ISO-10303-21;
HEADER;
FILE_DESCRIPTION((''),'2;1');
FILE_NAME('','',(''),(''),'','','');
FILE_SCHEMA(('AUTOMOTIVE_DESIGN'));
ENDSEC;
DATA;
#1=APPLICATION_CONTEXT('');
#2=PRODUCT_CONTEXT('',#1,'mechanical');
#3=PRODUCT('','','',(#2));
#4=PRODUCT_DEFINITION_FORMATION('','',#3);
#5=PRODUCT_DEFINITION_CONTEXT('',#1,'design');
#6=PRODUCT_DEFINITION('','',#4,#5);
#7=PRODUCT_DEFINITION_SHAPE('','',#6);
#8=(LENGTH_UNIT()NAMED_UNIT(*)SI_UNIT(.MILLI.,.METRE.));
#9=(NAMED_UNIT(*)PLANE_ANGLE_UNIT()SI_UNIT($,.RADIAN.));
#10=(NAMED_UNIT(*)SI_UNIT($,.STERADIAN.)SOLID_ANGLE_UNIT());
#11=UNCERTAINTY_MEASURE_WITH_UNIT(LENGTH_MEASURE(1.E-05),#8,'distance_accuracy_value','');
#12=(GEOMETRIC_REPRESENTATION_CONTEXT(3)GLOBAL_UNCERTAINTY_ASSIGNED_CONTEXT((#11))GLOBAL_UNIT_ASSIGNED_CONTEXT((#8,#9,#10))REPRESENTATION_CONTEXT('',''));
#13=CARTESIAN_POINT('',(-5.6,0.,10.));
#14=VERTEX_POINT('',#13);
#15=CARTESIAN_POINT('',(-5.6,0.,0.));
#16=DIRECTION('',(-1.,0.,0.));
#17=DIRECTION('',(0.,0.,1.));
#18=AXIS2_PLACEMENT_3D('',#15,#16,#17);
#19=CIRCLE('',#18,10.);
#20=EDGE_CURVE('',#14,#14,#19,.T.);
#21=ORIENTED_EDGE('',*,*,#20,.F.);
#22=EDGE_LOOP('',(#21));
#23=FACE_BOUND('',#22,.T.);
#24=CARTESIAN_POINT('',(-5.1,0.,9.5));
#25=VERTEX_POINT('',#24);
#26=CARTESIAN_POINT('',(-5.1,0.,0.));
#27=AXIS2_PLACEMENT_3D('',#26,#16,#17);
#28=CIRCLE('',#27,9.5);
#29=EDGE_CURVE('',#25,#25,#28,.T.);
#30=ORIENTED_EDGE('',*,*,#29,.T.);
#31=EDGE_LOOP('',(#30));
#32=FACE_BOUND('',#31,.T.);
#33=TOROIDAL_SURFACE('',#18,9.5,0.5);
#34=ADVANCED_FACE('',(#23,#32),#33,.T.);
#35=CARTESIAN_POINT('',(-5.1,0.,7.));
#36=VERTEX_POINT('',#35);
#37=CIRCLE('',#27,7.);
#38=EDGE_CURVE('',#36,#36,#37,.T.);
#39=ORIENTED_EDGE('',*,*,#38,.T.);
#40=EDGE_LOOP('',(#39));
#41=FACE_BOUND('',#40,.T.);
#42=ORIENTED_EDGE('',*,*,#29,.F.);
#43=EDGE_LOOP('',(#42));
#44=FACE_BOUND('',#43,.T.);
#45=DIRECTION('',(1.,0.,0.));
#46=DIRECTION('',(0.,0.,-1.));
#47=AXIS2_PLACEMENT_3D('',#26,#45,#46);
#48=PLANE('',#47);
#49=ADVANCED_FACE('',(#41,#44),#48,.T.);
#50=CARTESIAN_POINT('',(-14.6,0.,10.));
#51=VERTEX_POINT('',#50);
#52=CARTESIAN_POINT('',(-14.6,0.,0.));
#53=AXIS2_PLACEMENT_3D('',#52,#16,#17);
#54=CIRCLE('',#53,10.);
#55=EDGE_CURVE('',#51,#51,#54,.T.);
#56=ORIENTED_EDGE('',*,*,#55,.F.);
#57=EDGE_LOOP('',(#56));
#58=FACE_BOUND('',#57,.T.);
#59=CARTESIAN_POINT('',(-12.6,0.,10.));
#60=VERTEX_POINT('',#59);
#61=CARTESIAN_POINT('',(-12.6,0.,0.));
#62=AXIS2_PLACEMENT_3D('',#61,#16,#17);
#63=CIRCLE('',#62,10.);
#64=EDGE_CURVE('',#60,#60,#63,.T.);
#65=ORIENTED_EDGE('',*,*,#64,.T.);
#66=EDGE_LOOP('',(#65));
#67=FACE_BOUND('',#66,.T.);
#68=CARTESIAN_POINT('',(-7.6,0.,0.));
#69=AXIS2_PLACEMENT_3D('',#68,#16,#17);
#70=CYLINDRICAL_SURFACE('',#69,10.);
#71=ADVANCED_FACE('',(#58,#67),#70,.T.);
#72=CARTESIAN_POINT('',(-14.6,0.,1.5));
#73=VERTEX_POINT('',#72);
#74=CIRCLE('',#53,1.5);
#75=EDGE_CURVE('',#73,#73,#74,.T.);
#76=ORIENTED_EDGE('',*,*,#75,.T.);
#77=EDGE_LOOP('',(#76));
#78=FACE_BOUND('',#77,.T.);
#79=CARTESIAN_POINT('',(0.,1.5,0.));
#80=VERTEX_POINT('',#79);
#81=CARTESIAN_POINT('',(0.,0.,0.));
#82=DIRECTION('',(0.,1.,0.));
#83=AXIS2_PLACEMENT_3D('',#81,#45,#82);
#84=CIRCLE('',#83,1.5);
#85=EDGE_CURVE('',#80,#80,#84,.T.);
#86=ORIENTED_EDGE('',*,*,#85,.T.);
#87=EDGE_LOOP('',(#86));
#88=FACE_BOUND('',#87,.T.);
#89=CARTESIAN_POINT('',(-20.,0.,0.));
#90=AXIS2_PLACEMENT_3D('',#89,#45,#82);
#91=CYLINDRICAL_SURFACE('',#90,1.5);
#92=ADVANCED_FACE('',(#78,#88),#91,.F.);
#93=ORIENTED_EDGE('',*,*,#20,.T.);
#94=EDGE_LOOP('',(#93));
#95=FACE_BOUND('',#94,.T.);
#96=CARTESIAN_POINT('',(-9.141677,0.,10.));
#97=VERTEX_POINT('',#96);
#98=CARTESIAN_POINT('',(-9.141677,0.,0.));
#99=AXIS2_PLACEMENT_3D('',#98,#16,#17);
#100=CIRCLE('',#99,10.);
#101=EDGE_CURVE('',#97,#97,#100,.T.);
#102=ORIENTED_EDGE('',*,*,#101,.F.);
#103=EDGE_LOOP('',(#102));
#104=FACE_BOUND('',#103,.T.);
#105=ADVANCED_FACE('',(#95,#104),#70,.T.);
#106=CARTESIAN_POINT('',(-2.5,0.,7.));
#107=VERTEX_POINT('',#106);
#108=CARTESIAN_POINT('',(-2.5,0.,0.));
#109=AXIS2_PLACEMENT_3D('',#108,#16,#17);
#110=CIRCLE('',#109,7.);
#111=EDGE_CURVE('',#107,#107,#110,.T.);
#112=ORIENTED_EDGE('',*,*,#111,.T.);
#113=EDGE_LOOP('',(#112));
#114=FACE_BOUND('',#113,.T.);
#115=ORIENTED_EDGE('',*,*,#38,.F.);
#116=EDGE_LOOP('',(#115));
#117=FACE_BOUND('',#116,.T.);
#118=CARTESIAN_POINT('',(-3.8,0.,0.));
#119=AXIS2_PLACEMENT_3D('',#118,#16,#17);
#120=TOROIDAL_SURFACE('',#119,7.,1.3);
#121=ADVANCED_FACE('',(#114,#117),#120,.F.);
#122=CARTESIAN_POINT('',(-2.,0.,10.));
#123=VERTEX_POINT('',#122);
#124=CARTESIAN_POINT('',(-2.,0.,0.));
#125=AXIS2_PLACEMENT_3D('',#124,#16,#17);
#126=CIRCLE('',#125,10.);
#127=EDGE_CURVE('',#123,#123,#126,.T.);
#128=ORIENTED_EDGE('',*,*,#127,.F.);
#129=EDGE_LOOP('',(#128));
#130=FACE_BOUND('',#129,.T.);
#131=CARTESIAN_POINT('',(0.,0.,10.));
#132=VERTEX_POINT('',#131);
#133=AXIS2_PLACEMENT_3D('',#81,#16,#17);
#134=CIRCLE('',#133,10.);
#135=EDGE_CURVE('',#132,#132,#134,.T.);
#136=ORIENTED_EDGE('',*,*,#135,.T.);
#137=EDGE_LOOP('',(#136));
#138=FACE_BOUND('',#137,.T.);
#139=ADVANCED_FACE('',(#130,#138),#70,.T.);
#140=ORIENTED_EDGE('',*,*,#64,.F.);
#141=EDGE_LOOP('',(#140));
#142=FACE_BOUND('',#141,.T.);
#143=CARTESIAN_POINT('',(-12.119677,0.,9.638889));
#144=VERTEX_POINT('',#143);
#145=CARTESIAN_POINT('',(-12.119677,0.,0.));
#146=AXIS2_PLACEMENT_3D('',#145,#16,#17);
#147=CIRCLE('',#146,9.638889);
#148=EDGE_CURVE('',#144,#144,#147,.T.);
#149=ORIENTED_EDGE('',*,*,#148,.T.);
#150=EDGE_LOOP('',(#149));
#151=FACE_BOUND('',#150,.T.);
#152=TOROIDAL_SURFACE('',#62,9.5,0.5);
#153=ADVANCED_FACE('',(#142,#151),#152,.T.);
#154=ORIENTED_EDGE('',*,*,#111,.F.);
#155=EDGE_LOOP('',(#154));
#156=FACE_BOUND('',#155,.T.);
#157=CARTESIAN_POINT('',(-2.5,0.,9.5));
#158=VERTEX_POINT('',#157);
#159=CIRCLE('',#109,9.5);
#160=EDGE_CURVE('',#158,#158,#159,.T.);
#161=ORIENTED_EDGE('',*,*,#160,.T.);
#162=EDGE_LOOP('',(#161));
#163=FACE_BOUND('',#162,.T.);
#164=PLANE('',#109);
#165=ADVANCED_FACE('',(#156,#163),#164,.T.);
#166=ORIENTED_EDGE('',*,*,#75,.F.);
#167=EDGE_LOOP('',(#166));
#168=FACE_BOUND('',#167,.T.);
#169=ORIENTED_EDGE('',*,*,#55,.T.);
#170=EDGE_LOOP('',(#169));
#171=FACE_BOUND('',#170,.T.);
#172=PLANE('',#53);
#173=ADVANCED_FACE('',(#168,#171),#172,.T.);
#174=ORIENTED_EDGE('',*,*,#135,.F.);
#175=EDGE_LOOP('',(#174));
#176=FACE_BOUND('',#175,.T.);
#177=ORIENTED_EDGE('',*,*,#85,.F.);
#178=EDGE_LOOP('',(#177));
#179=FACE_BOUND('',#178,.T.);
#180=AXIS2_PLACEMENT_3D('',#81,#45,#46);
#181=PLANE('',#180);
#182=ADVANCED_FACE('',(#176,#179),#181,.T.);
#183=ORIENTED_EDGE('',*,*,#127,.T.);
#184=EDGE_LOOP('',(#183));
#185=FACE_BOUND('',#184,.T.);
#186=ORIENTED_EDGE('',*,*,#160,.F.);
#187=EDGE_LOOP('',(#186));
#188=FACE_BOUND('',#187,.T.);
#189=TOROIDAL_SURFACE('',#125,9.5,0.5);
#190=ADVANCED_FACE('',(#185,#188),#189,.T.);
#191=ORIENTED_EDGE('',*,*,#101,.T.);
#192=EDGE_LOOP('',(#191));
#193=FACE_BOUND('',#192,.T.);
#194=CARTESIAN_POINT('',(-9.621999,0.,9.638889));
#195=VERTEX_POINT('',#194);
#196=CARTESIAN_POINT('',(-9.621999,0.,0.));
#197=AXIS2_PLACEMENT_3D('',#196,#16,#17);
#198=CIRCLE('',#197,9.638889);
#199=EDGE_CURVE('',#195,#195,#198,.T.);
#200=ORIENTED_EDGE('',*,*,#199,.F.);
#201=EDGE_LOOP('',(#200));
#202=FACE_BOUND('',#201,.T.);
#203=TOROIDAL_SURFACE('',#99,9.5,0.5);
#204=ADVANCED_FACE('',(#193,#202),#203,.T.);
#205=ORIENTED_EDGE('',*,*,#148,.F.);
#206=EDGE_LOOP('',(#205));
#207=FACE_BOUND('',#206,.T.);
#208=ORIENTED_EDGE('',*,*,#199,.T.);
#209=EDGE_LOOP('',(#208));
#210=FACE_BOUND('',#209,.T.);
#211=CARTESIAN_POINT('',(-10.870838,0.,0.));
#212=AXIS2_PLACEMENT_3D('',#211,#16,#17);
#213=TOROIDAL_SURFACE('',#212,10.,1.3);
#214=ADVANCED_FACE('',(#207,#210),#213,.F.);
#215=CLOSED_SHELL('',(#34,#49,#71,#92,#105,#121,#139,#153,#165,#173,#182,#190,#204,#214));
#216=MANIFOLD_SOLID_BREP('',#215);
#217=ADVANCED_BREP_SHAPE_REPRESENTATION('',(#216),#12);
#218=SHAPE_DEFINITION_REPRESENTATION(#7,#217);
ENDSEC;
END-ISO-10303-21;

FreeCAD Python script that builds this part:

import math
import FreeCAD as App
import Part
import Sketcher
from FreeCAD import Vector

doc = App.newDocument("Part")
body = doc.addObject("PartDesign::Body", "Body")

# Sketch on XY plane
sketch1 = body.newObject("Sketcher::SketchObject", "Sketch")
sketch1.AttachmentSupport = (doc.getObject("XY_Plane"), [""])
sketch1.MapMode = "FlatFace"
sketch1.addGeometry([
    Part.LineSegment(Vector(0, 0, 0), Vector(0, 10, 0)),  # 0
    Part.LineSegment(Vector(0, 10, 0), Vector(-2, 10, 0)),  # 1
    Part.ArcOfCircle(Part.Circle(Vector(-2, 9.5, 0), Vector(0, 0, 1), 0.5), math.radians(90), math.radians(180)),  # 2
    Part.LineSegment(Vector(-2.5, 9.5, 0), Vector(-2.5, 7, 0)),  # 3
    Part.ArcOfCircle(Part.Circle(Vector(-3.8, 7, 0), Vector(0, 0, 1), 1.3), math.radians(180), math.radians(360)),  # 4
    Part.LineSegment(Vector(-5.1, 7, 0), Vector(-5.1, 9.5, 0)),  # 5
    Part.ArcOfCircle(Part.Circle(Vector(-5.6, 9.5, 0), Vector(0, 0, 1), 0.5), math.radians(0), math.radians(90)),  # 6
    Part.LineSegment(Vector(-5.6, 10, 0), Vector(-9.14, 10, 0)),  # 7
    Part.ArcOfCircle(Part.Circle(Vector(-9.14, 9.5, 0), Vector(0, 0, 1), 0.5), math.radians(90), math.radians(164)),  # 8
    Part.ArcOfCircle(Part.Circle(Vector(-10.87, 10, 0), Vector(0, 0, 1), 1.3), math.radians(-164), math.radians(-16)),  # 9
    Part.ArcOfCircle(Part.Circle(Vector(-12.6, 9.5, 0), Vector(0, 0, 1), 0.5), math.radians(16), math.radians(90)),  # 10
    Part.LineSegment(Vector(-12.6, 10, 0), Vector(-14.6, 10, 0)),  # 11
    Part.LineSegment(Vector(-14.6, 10, 0), Vector(-14.6, 0, 0)),  # 12
    Part.LineSegment(Vector(-14.6, 0, 0), Vector(0, 0, 0)),  # 13
], False)
sketch1.addConstraint([
    Sketcher.Constraint("Coincident", 0, 2, 1, 1),
    Sketcher.Constraint("Tangent", 1, 2, 2, 1),
    Sketcher.Constraint("Tangent", 2, 2, 3, 1),
    Sketcher.Constraint("Tangent", 3, 2, 4, 2),
    Sketcher.Constraint("Tangent", 4, 1, 5, 1),
    Sketcher.Constraint("Tangent", 5, 2, 6, 1),
    Sketcher.Constraint("Tangent", 6, 2, 7, 1),
    Sketcher.Constraint("Tangent", 7, 2, 8, 1),
    Sketcher.Constraint("Tangent", 8, 2, 9, 2),
    Sketcher.Constraint("Tangent", 9, 1, 10, 1),
    Sketcher.Constraint("Tangent", 10, 2, 11, 1),
    Sketcher.Constraint("Coincident", 11, 2, 12, 1),
    Sketcher.Constraint("Coincident", 12, 2, 13, 1),
    Sketcher.Constraint("Coincident", 13, 2, 0, 1),
    Sketcher.Constraint("Vertical", 0),
    Sketcher.Constraint("Horizontal", 1),
    Sketcher.Constraint("Vertical", 3),
    Sketcher.Constraint("Vertical", 5),
    Sketcher.Constraint("Horizontal", 7),
    Sketcher.Constraint("Horizontal", 11),
    Sketcher.Constraint("Vertical", 12),
    Sketcher.Constraint("Horizontal", 13),
    Sketcher.Constraint("Coincident", 13, 2, -1, 1),
    Sketcher.Constraint("Equal", 2, 6),
    Sketcher.Constraint("Equal", 6, 8),
    Sketcher.Constraint("Equal", 4, 9),
    Sketcher.Constraint("Equal", 8, 10),
    Sketcher.Constraint("Horizontal", 2, 3, 6, 3),
    Sketcher.Constraint("Horizontal", 8, 3, 10, 3),
    Sketcher.Constraint("Horizontal", 9, 3, 0, 2),
    Sketcher.Constraint("Equal", 1, 11),
    Sketcher.Constraint("Radius", 2, 0.5),
    Sketcher.Constraint("Radius", 4, 1.3),
    Sketcher.Constraint("DistanceX", 1, 2, 1, 1, 2.0),
    Sketcher.Constraint("DistanceY", 0, 1, 0, 2, 10.0),
    Sketcher.Constraint("DistanceX", 13, 1, 13, 2, 14.6),
    Sketcher.Constraint("DistanceY", 3, 2, 3, 1, 2.5),
])
revolution = body.newObject("PartDesign::Revolution", "Revolution")
revolution.Profile = sketch1
revolution.ReferenceAxis = (sketch1, ["H_Axis"])
revolution.Angle = 360

# Sketch on YZ plane
sketch2 = body.newObject("Sketcher::SketchObject", "Sketch001")
sketch2.AttachmentSupport = (doc.getObject("YZ_Plane"), [""])
sketch2.MapMode = "FlatFace"
sketch2.addGeometry(Part.Circle(Vector(0, 0, 0), Vector(0, 0, 1), 1.5), False)
sketch2.addConstraint([
    Sketcher.Constraint("Coincident", 0, 3, -1, 1),
    Sketcher.Constraint("Diameter", 0, 3.0),
])
pocket1 = body.newObject("PartDesign::Pocket", "Pocket")
pocket1.Profile = sketch2
pocket1.Length = 20

doc.recompute()
